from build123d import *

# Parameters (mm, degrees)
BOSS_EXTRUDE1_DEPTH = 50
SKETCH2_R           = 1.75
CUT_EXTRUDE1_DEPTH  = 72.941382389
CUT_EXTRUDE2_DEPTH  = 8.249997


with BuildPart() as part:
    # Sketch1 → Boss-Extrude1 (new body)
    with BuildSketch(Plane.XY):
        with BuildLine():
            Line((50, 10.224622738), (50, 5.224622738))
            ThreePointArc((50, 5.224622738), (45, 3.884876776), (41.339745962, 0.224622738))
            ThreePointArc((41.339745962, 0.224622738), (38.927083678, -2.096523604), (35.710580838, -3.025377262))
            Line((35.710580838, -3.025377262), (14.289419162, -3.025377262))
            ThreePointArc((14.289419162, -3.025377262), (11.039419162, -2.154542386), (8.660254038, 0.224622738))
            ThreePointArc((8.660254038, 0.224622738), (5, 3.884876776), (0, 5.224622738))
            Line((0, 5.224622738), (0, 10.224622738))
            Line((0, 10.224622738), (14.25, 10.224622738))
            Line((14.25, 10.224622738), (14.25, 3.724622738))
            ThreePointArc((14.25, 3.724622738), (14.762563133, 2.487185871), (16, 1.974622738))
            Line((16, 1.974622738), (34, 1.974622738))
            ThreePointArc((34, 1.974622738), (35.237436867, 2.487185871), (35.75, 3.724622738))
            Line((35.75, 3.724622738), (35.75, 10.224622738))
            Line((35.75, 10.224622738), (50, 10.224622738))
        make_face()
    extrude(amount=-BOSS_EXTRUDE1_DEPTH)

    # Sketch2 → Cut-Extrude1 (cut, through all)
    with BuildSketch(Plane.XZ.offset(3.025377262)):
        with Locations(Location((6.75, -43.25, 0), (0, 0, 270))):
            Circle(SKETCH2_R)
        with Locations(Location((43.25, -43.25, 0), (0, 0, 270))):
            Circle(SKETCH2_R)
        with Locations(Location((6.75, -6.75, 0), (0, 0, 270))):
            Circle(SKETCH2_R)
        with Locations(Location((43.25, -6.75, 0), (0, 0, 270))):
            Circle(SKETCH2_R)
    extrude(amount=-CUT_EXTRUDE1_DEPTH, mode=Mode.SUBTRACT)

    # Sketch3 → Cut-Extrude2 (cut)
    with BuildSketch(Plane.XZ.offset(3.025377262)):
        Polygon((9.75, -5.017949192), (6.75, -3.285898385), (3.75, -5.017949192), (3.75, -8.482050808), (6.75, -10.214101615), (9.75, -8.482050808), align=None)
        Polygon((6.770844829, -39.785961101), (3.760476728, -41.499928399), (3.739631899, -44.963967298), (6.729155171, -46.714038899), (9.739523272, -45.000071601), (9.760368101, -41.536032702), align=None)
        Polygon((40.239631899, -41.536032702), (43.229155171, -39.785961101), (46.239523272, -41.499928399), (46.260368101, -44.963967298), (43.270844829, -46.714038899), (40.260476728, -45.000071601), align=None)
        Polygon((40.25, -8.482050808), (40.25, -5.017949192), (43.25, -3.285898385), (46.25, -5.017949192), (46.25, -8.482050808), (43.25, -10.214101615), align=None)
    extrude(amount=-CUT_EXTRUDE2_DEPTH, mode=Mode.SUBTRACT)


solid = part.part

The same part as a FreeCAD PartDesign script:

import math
import FreeCAD as App
import Part
import Sketcher
from FreeCAD import Vector
Q = App.Units.Quantity

doc = App.newDocument("Part")
body = doc.addObject("PartDesign::Body", "Body")

sketch1 = body.newObject("Sketcher::SketchObject", "Sketch")
sketch1.AttachmentSupport = (doc.getObject("XY_Plane"), [""])
sketch1.MapMode = "FlatFace"
sketch1.addGeometry([
    Part.LineSegment(Vector(50, 5.2, 0), Vector(50, 10.2, 0)),
    Part.LineSegment(Vector(50, 10.2, 0), Vector(35.8, 10.2, 0)),
    Part.LineSegment(Vector(35.8, 10.2, 0), Vector(35.8, 3.7, 0)),
    Part.ArcOfCircle(Part.Circle(Vector(34, 3.7, 0), Vector(0, 0, 1), 1.8), math.radians(-90), math.radians(0)),
    Part.LineSegment(Vector(34, 2, 0), Vector(16, 2, 0)),
    Part.ArcOfCircle(Part.Circle(Vector(16, 3.7, 0), Vector(0, 0, 1), 1.8), math.radians(180), math.radians(270)),
    Part.LineSegment(Vector(14.2, 3.7, 0), Vector(14.2, 10.2, 0)),
    Part.LineSegment(Vector(14.2, 10.2, 0), Vector(0, 10.2, 0)),
    Part.LineSegment(Vector(0, 10.2, 0), Vector(0, 5.2, 0)),
    Part.ArcOfCircle(Part.Circle(Vector(0, -4.8, 0), Vector(0, 0, 1), 10), math.radians(30), math.radians(90)),
    Part.ArcOfCircle(Part.Circle(Vector(14.3, 3.5, 0), Vector(0, 0, 1), 6.5), math.radians(-150), math.radians(-90)),
    Part.LineSegment(Vector(14.3, -3, 0), Vector(35.7, -3, 0)),
    Part.ArcOfCircle(Part.Circle(Vector(35.4, 3.9, 0), Vector(0, 0, 1), 7), math.radians(-88), math.radians(-32)),
    Part.ArcOfCircle(Part.Circle(Vector(50, -4.8, 0), Vector(0, 0, 1), 10), math.radians(90), math.radians(150)),
], False)
sketch1.addConstraint([
    Sketcher.Constraint("Coincident", 0, 2, 1, 1),
    Sketcher.Constraint("Coincident", 1, 2, 2, 1),
    Sketcher.Constraint("Tangent", 2, 2, 3, 2),
    Sketcher.Constraint("Tangent", 3, 1, 4, 1),
    Sketcher.Constraint("Tangent", 4, 2, 5, 2),
    Sketcher.Constraint("Tangent", 5, 1, 6, 1),
    Sketcher.Constraint("Coincident", 6, 2, 7, 1),
    Sketcher.Constraint("Coincident", 7, 2, 8, 1),
    Sketcher.Constraint("Coincident", 8, 2, 9, 2),
    Sketcher.Constraint("Tangent", 9, 1, 10, 1),
    Sketcher.Constraint("Tangent", 10, 2, 11, 1),
    Sketcher.Constraint("Coincident", 11, 2, 12, 1),
    Sketcher.Constraint("Coincident", 12, 2, 13, 2),
    Sketcher.Constraint("Coincident", 13, 1, 0, 1),
    Sketcher.Constraint("Vertical", 0),
    Sketcher.Constraint("Horizontal", 1),
    Sketcher.Constraint("Vertical", 2),
    Sketcher.Constraint("Horizontal", 4),
    Sketcher.Constraint("Vertical", 6),
    Sketcher.Constraint("Horizontal", 7),
    Sketcher.Constraint("Vertical", 8),
    Sketcher.Constraint("Horizontal", 11),
    Sketcher.Constraint("Equal", 3, 5),
    Sketcher.Constraint("Equal", 9, 13),
    Sketcher.Constraint("PointOnObject", 9, 3, -2),
    Sketcher.Constraint("PointOnObject", 7, 2, -2),
    Sketcher.Constraint("Horizontal", 9, 3, 13, 3),
    Sketcher.Constraint("Horizontal", 1, 2, 6, 2),
    Sketcher.Constraint("Horizontal", 9, 1, 12, 2),
    Sketcher.Constraint("Vertical", 13, 3, 0, 2),
    Sketcher.Constraint("Equal", 1, 7),
    Sketcher.Constraint("Radius", 9, 10.0),
    Sketcher.Constraint("Radius", 10, 6.5),
    Sketcher.Constraint("DistanceX", 4, 2, 4, 1, 18.0),
    Sketcher.Constraint("DistanceY", 0, 1, 0, 2, 5.0),
    Sketcher.Constraint("Radius", 3, 1.75),
    Sketcher.Constraint("DistanceY", 2, 2, 2, 1, 6.5),
    Sketcher.Constraint("DistanceX", -1, 1, 3, 3, 34.0),
    Sketcher.Constraint("DistanceY", 9, 3, 9, 1, 5.0),
    Sketcher.Constraint("Radius", 12, 6.971942),
    Sketcher.Constraint("DistanceX", 11, 1, 11, 2, 21.421162),
    Sketcher.Constraint("DistanceY", -1, 1, 3, 3, 3.724623),
])
pad1 = body.newObject("PartDesign::Pad", "Pad")
pad1.Profile = sketch1
pad1.Length = 50
pad1.Reversed = True

sketch2 = body.newObject("Sketcher::SketchObject", "Sketch001")
sketch2.AttachmentSupport = (doc.getObject("XZ_Plane"), [""])
sketch2.MapMode = "FlatFace"
sketch2.AttachmentOffset = App.Placement(Vector(0, 0, 3.025377), App.Rotation())
sketch2.addGeometry([
    Part.Circle(Vector(6.8, -43.2, 0), Vector(0, 0, 1), 1.8),
    Part.Circle(Vector(43.2, -43.2, 0), Vector(0, 0, 1), 1.8),
    Part.Circle(Vector(6.8, -6.8, 0), Vector(0, 0, 1), 1.8),
    Part.Circle(Vector(43.2, -6.8, 0), Vector(0, 0, 1), 1.8),
], False)
sketch2.addConstraint([
    Sketcher.Constraint("Equal", 0, 1),
    Sketcher.Constraint("Equal", 1, 2),
    Sketcher.Constraint("Equal", 2, 3),
    Sketcher.Constraint("Horizontal", 0, 3, 1, 3),
    Sketcher.Constraint("Horizontal", 2, 3, 3, 3),
    Sketcher.Constraint("Vertical", 0, 3, 2, 3),
    Sketcher.Constraint("Vertical", 1, 3, 3, 3),
    Sketcher.Constraint("Diameter", 0, 3.5),
    Sketcher.Constraint("DistanceX", 0, 3, 1, 3, 36.5),
    Sketcher.Constraint("DistanceY", 0, 3, 2, 3, 36.5),
    Sketcher.Constraint("DistanceX", -1, 1, 0, 3, 6.75),
    Sketcher.Constraint("DistanceY", 0, 3, -1, 1, 43.25),
])
pocket1 = body.newObject("PartDesign::Pocket", "Pocket")
pocket1.Profile = sketch2
pocket1.Type = "ThroughAll"

sketch3 = body.newObject("Sketcher::SketchObject", "Sketch002")
sketch3.AttachmentSupport = (doc.getObject("XZ_Plane"), [""])
sketch3.MapMode = "FlatFace"
sketch3.AttachmentOffset = App.Placement(Vector(0, 0, 3.025377), App.Rotation())
sketch3.addGeometry([
    Part.LineSegment(Vector(9.8, -5, 0), Vector(6.8, -3.3, 0)),
    Part.LineSegment(Vector(6.8, -3.3, 0), Vector(3.8, -5, 0)),
    Part.LineSegment(Vector(3.8, -5, 0), Vector(3.8, -8.5, 0)),
    Part.LineSegment(Vector(3.8, -8.5, 0), Vector(6.8, -10.2, 0)),
    Part.LineSegment(Vector(6.8, -10.2, 0), Vector(9.8, -8.5, 0)),
    Part.LineSegment(Vector(9.8, -8.5, 0), Vector(9.8, -5, 0)),
    Part.LineSegment(Vector(6.8, -39.8, 0), Vector(3.8, -41.5, 0)),
    Part.LineSegment(Vector(3.8, -41.5, 0), Vector(3.7, -45, 0)),
    Part.LineSegment(Vector(3.7, -45, 0), Vector(6.7, -46.7, 0)),
    Part.LineSegment(Vector(6.7, -46.7, 0), Vector(9.7, -45, 0)),
    Part.LineSegment(Vector(9.7, -45, 0), Vector(9.8, -41.5, 0)),
    Part.LineSegment(Vector(9.8, -41.5, 0), Vector(6.8, -39.8, 0)),
    Part.LineSegment(Vector(43.2, -39.8, 0), Vector(40.2, -41.5, 0)),
    Part.LineSegment(Vector(40.2, -41.5, 0), Vector(40.3, -45, 0)),
    Part.LineSegment(Vector(40.3, -45, 0), Vector(43.3, -46.7, 0)),
    Part.LineSegment(Vector(43.3, -46.7, 0), Vector(46.3, -45, 0)),
    Part.LineSegment(Vector(46.3, -45, 0), Vector(46.2, -41.5, 0)),
    Part.LineSegment(Vector(46.2, -41.5, 0), Vector(43.2, -39.8, 0)),
    Part.LineSegment(Vector(40.2, -5, 0), Vector(40.2, -8.5, 0)),
    Part.LineSegment(Vector(40.2, -8.5, 0), Vector(43.2, -10.2, 0)),
    Part.LineSegment(Vector(43.2, -10.2, 0), Vector(46.2, -8.5, 0)),
    Part.LineSegment(Vector(46.2, -8.5, 0), Vector(46.2, -5, 0)),
    Part.LineSegment(Vector(46.2, -5, 0), Vector(43.2, -3.3, 0)),
    Part.LineSegment(Vector(43.2, -3.3, 0), Vector(40.2, -5, 0)),
], False)
sketch3.addConstraint([
    Sketcher.Constraint("Coincident", 0, 2, 1, 1),
    Sketcher.Constraint("Coincident", 1, 2, 2, 1),
    Sketcher.Constraint("Coincident", 2, 2, 3, 1),
    Sketcher.Constraint("Coincident", 3, 2, 4, 1),
    Sketcher.Constraint("Coincident", 4, 2, 5, 1),
    Sketcher.Constraint("Coincident", 5, 2, 0, 1),
    Sketcher.Constraint("Coincident", 6, 2, 7, 1),
    Sketcher.Constraint("Coincident", 7, 2, 8, 1),
    Sketcher.Constraint("Coincident", 8, 2, 9, 1),
    Sketcher.Constraint("Coincident", 9, 2, 10, 1),
    Sketcher.Constraint("Coincident", 10, 2, 11, 1),
    Sketcher.Constraint("Coincident", 11, 2, 6, 1),
    Sketcher.Constraint("Coincident", 12, 2, 13, 1),
    Sketcher.Constraint("Coincident", 13, 2, 14, 1),
    Sketcher.Constraint("Coincident", 14, 2, 15, 1),
    Sketcher.Constraint("Coincident", 15, 2, 16, 1),
    Sketcher.Constraint("Coincident", 16, 2, 17, 1),
    Sketcher.Constraint("Coincident", 17, 2, 12, 1),
    Sketcher.Constraint("Coincident", 18, 2, 19, 1),
    Sketcher.Constraint("Coincident", 19, 2, 20, 1),
    Sketcher.Constraint("Coincident", 20, 2, 21, 1),
    Sketcher.Constraint("Coincident", 21, 2, 22, 1),
    Sketcher.Constraint("Coincident", 22, 2, 23, 1),
    Sketcher.Constraint("Coincident", 23, 2, 18, 1),
    Sketcher.Constraint("Vertical", 2),
    Sketcher.Constraint("Vertical", 5),
    Sketcher.Constraint("Vertical", 18),
    Sketcher.Constraint("Vertical", 21),
    Sketcher.Constraint("Parallel", 0, 3),
    Sketcher.Constraint("Parallel", 1, 4),
    Sketcher.Constraint("Parallel", 6, 9),
    Sketcher.Constraint("Parallel", 7, 10),
    Sketcher.Constraint("Parallel", 8, 11),
    Sketcher.Constraint("Parallel", 12, 15),
    Sketcher.Constraint("Parallel", 13, 16),
    Sketcher.Constraint("Parallel", 14, 17),
    Sketcher.Constraint("Parallel", 3, 19),
    Sketcher.Constraint("Parallel", 4, 20),
    Sketcher.Constraint("Parallel", 19, 22),
    Sketcher.Constraint("Parallel", 20, 23),
    Sketcher.Constraint("Horizontal", 2, 2, 4, 2),
    Sketcher.Constraint("Horizontal", 1, 2, 5, 2),
    Sketcher.Constraint("Horizontal", 10, 2, 12, 2),
    Sketcher.Constraint("Horizontal", 9, 2, 13, 2),
    Sketcher.Constraint("Horizontal", 8, 2, 14, 2),
    Sketcher.Constraint("Horizontal", 7, 2, 15, 2),
    Sketcher.Constraint("Horizontal", 6, 2, 16, 2),
    Sketcher.Constraint("Horizontal", 4, 2, 18, 2),
    Sketcher.Constraint("Horizontal", 3, 2, 19, 2),
    Sketcher.Constraint("Horizontal", 18, 2, 20, 2),
    Sketcher.Constraint("Horizontal", 5, 2, 21, 2),
    Sketcher.Constraint("Horizontal", 0, 2, 22, 2),
    Sketcher.Constraint("Vertical", 0, 2, 3, 2),
    Sketcher.Constraint("Equal", 4, 6),
    Sketcher.Constraint("Equal", 6, 7),
    Sketcher.Constraint("Equal", 7, 8),
    Sketcher.Constraint("Equal", 8, 9),
    Sketcher.Constraint("Equal", 11, 12),
    Sketcher.Constraint("Equal", 12, 13),
    Sketcher.Constraint("Equal", 13, 14),
    Sketcher.Constraint("Angle", 0, Q("150 deg")),
    Sketcher.Constraint("DistanceX", 1, 2, 0, 2, 3.0),
    Sketcher.Constraint("DistanceX", 10, 2, 15, 2, 36.5),
    Sketcher.Constraint("DistanceX", 4, 2, 18, 2, 30.5),
    Sketcher.Constraint("DistanceX", -1, 1, 0, 2, 6.75),
    Sketcher.Constraint("DistanceY", 2, 2, 2, 1, 3.464102),
    Sketcher.Constraint("DistanceY", 0, 2, -1, 1, 3.285898),
    Sketcher.Constraint("DistanceY", 6, 2, -1, 1, 41.499928),
    Sketcher.Constraint("DistanceX", -1, 1, 7, 2, 3.739632),
    Sketcher.Constraint("DistanceY", 8, 2, -1, 1, 46.714039),
    Sketcher.Constraint("DistanceY", 9, 2, -1, 1, 45.000072),
    Sketcher.Constraint("DistanceX", -1, 1, 10, 2, 9.760368),
])
pocket2 = body.newObject("PartDesign::Pocket", "Pocket001")
pocket2.Profile = sketch3
pocket2.Length = 8.249997

doc.recompute()
